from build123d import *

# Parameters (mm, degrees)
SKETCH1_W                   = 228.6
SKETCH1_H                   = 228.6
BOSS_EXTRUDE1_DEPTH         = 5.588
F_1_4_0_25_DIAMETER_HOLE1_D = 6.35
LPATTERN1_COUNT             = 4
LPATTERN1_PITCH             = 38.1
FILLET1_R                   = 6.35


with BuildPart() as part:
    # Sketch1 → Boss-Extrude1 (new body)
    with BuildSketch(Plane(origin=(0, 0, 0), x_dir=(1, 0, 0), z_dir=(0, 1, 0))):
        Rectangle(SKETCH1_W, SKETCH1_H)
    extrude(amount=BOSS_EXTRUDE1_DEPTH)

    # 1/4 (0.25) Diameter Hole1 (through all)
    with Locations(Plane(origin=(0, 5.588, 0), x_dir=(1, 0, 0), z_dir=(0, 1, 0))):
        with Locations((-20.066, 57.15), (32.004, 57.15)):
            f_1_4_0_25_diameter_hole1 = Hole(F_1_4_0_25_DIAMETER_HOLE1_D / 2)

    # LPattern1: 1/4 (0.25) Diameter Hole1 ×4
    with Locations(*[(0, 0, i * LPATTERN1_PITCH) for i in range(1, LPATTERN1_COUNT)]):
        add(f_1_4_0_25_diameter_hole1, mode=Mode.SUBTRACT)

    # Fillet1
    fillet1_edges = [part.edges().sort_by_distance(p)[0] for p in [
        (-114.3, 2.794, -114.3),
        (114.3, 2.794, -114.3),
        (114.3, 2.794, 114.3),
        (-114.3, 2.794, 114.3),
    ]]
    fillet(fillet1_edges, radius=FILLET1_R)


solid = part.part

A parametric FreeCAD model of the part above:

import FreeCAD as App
import Part
import Sketcher
Q = App.Units.Quantity


def edges_at(feature, points):
    """Names of the edges that pass closest to the given points."""
    edges = feature.Shape.Edges
    near = lambda p: min(range(len(edges)), key=lambda i: edges[i].distToShape(Part.Vertex(*p))[0])
    return sorted({f"Edge{near(p) + 1}" for p in points})


def add_polygon(sketch, points):
    """Adds a closed chain of lines whose ends are joined by coincident constraints."""
    first, n = sketch.GeometryCount, len(points)
    for a, b in zip(points, points[1:] + points[:1]):
        sketch.addGeometry(Part.LineSegment(App.Vector(*a, 0), App.Vector(*b, 0)), False)
    for i in range(n):
        sketch.addConstraint(Sketcher.Constraint("Coincident", first + i, 2, first + (i + 1) % n, 1))

doc = App.newDocument("Part")
body = doc.addObject("PartDesign::Body", "Body")

# Sketch on XZ plane
sketch1 = body.newObject("Sketcher::SketchObject", "Sketch")
sketch1.AttachmentSupport = (doc.getObject("XZ_Plane"), [""])
sketch1.MapMode = "FlatFace"
add_polygon(sketch1, [(-114.3, -114.3), (-114.3, 114.3), (114.3, 114.3), (114.3, -114.3)])  # lines 0-3
sketch1.addConstraint(Sketcher.Constraint("Vertical", 0))
sketch1.addConstraint(Sketcher.Constraint("Horizontal", 1))
sketch1.addConstraint(Sketcher.Constraint("Vertical", 2))
sketch1.addConstraint(Sketcher.Constraint("Horizontal", 3))
sketch1.addConstraint(Sketcher.Constraint("Symmetric", 0, 2, 2, 2, -1, 1))
sketch1.addConstraint(Sketcher.Constraint("Equal", 3, 0))
sketch1.addConstraint(Sketcher.Constraint("DistanceX", 1, 1, 1, 2, Q("9 in")))
pad1 = body.newObject("PartDesign::Pad", "Pad")
pad1.Profile = sketch1
pad1.Length = Q("0.22 in")
pad1.Reversed = True

# Sketch on XZ plane
sketch2 = body.newObject("Sketcher::SketchObject", "Sketch001")
sketch2.AttachmentSupport = (doc.getObject("XZ_Plane"), [""])
sketch2.MapMode = "FlatFace"
sketch2.AttachmentOffset = App.Placement(App.Vector(0, 0, -0.22 * 25.4), App.Rotation())
sketch2.addGeometry(Part.Circle(App.Vector(-20.066, -57.15, 0), App.Vector(0, 0, 1), 3.175), False)
sketch2.addGeometry(Part.Circle(App.Vector(32.004, -57.15, 0), App.Vector(0, 0, 1), 3.175), False)
sketch2.addConstraint(Sketcher.Constraint("Equal", 0, 1))
sketch2.addConstraint(Sketcher.Constraint("Horizontal", 0, 3, 1, 3))
sketch2.addConstraint(Sketcher.Constraint("Diameter", 0, Q("0.25 in")))
sketch2.addConstraint(Sketcher.Constraint("DistanceX", 0, 3, -1, 1, Q("0.79 in")))
sketch2.addConstraint(Sketcher.Constraint("DistanceY", 0, 3, -1, 1, Q("2.25 in")))
sketch2.addConstraint(Sketcher.Constraint("DistanceX", -1, 1, 1, 3, Q("1.26 in")))
doc.recompute()
hole = body.newObject("PartDesign::Hole", "Hole")
hole.Profile = sketch2
hole.ThreadType = "None"
hole.Diameter = Q("0.25 in")
hole.DepthType = "ThroughAll"
hole.Reversed = True
doc.recompute()

linearpattern = body.newObject("PartDesign::LinearPattern", "LinearPattern")
linearpattern.Originals = [hole]
linearpattern.Direction = (doc.getObject("Z_Axis"), [""])
linearpattern.Mode = "offset"
linearpattern.Offset = Q("1.5 in")
linearpattern.Occurrences = 4
body.Tip = linearpattern
doc.recompute()

fillet = body.newObject("PartDesign::Fillet", "Fillet")
fillet.Base = (linearpattern, edges_at(linearpattern, [
    (-114.3, 2.794, -114.3),
    (114.3, 2.794, -114.3),
    (114.3, 2.794, 114.3),
    (-114.3, 2.794, 114.3),
]))
fillet.Radius = Q("0.25 in")

doc.recompute()
